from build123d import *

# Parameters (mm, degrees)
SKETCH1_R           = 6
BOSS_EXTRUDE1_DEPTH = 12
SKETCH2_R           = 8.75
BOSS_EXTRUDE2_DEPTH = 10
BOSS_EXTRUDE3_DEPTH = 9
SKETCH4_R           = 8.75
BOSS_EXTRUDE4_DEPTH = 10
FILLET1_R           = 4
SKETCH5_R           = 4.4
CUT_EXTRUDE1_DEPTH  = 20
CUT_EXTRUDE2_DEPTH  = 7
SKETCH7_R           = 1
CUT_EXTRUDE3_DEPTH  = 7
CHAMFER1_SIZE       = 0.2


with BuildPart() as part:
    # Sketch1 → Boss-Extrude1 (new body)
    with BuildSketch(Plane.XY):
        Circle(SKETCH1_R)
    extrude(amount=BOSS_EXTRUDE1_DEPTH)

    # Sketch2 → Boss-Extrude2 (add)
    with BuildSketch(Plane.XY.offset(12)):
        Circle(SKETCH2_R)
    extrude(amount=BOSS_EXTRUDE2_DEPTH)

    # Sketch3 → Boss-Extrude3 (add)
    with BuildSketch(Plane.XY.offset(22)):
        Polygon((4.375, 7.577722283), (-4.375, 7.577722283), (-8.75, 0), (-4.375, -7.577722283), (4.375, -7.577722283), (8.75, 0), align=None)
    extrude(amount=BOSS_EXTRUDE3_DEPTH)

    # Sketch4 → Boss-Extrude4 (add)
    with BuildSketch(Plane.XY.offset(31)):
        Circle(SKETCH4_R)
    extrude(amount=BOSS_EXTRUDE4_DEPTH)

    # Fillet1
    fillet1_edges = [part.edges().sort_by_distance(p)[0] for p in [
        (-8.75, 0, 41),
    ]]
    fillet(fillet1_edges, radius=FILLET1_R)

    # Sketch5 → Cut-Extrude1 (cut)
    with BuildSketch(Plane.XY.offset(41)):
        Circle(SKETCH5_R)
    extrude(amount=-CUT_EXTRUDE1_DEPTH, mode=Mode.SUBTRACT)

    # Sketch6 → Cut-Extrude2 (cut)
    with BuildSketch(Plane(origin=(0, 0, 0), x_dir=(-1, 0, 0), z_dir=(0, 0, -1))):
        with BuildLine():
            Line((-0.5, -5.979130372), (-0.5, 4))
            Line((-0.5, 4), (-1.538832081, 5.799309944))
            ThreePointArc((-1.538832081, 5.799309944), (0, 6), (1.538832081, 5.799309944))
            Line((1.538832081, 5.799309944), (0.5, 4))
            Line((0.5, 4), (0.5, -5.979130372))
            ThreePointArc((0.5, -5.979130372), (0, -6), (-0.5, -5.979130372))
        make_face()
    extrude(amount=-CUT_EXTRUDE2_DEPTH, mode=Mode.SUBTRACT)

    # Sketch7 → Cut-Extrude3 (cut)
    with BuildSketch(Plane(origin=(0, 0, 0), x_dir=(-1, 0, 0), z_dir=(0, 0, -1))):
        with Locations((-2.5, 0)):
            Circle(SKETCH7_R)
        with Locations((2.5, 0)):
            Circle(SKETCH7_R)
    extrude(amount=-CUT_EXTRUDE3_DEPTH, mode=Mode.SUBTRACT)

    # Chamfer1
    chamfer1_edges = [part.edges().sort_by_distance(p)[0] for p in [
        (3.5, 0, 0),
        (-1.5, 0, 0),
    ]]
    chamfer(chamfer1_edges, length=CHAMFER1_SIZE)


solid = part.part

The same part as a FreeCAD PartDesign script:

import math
import FreeCAD as App
import Part
import Sketcher
from FreeCAD import Vector
Q = App.Units.Quantity


def edges_at(feature, points):
    """Names of the edges that pass closest to the given points."""
    edges = feature.Shape.Edges
    near = lambda p: min(range(len(edges)), key=lambda i: edges[i].distToShape(Part.Vertex(*p))[0])
    return sorted({f"Edge{near(p) + 1}" for p in points})


def add_polygon(sketch, points):
    """Adds a closed chain of lines whose ends are joined by coincident constraints."""
    first, n = sketch.GeometryCount, len(points)
    for a, b in zip(points, points[1:] + points[:1]):
        sketch.addGeometry(Part.LineSegment(App.Vector(*a, 0), App.Vector(*b, 0)), False)
    for i in range(n):
        sketch.addConstraint(Sketcher.Constraint("Coincident", first + i, 2, first + (i + 1) % n, 1))

doc = App.newDocument("Part")
body = doc.addObject("PartDesign::Body", "Body")

# Sketch on XY plane
sketch1 = body.newObject("Sketcher::SketchObject", "Sketch")
sketch1.AttachmentSupport = (doc.getObject("XY_Plane"), [""])
sketch1.MapMode = "FlatFace"
sketch1.addGeometry(Part.Circle(Vector(0, 0, 0), Vector(0, 0, 1), 6), False)
sketch1.addConstraint(Sketcher.Constraint("Coincident", 0, 3, -1, 1))
sketch1.addConstraint(Sketcher.Constraint("Diameter", 0, 12.0))
pad1 = body.newObject("PartDesign::Pad", "Pad")
pad1.Profile = sketch1
pad1.Length = 12

# Sketch on XY plane
sketch2 = body.newObject("Sketcher::SketchObject", "Sketch001")
sketch2.AttachmentSupport = (doc.getObject("XY_Plane"), [""])
sketch2.MapMode = "FlatFace"
sketch2.AttachmentOffset = App.Placement(Vector(0, 0, 12), App.Rotation())
sketch2.addGeometry(Part.Circle(Vector(0, 0, 0), Vector(0, 0, 1), 8.75), False)
sketch2.addConstraint(Sketcher.Constraint("Coincident", 0, 3, -1, 1))
sketch2.addConstraint(Sketcher.Constraint("Diameter", 0, 17.5))
pad2 = body.newObject("PartDesign::Pad", "Pad001")
pad2.Profile = sketch2
pad2.Length = 10

# Sketch on XY plane
sketch3 = body.newObject("Sketcher::SketchObject", "Sketch002")
sketch3.AttachmentSupport = (doc.getObject("XY_Plane"), [""])
sketch3.MapMode = "FlatFace"
sketch3.AttachmentOffset = App.Placement(Vector(0, 0, 22), App.Rotation())
add_polygon(sketch3, [(4.375, 7.577722), (-4.375, 7.577722), (-8.75, 0), (-4.375, -7.577722), (4.375, -7.577722), (8.75, 0)])  # lines 0-5
sketch3.addConstraint(Sketcher.Constraint("Horizontal", 0))
sketch3.addConstraint(Sketcher.Constraint("Horizontal", 3))
sketch3.addConstraint(Sketcher.Constraint("Symmetric", 0, 2, 3, 2, -1, 1))
sketch3.addConstraint(Sketcher.Constraint("Symmetric", 1, 2, 4, 2, -1, 1))
sketch3.addConstraint(Sketcher.Constraint("PointOnObject", 1, 2, -1))
sketch3.addConstraint(Sketcher.Constraint("Parallel", 2, 5))
sketch3.addConstraint(Sketcher.Constraint("Vertical", 0, 2, 2, 2))
sketch3.addConstraint(Sketcher.Constraint("Angle", 1, Q("-120 deg")))
sketch3.addConstraint(Sketcher.Constraint("DistanceX", 0, 2, 0, 1, 8.75))
sketch3.addConstraint(Sketcher.Constraint("DistanceX", 1, 2, 4, 2, 17.5))
pad3 = body.newObject("PartDesign::Pad", "Pad002")
pad3.Profile = sketch3
pad3.Length = 9

# Sketch on XY plane
sketch4 = body.newObject("Sketcher::SketchObject", "Sketch003")
sketch4.AttachmentSupport = (doc.getObject("XY_Plane"), [""])
sketch4.MapMode = "FlatFace"
sketch4.AttachmentOffset = App.Placement(Vector(0, 0, 31), App.Rotation())
sketch4.addGeometry(Part.Circle(Vector(0, 0, 0), Vector(0, 0, 1), 8.75), False)
sketch4.addConstraint(Sketcher.Constraint("Coincident", 0, 3, -1, 1))
sketch4.addConstraint(Sketcher.Constraint("Diameter", 0, 17.5))
pad4 = body.newObject("PartDesign::Pad", "Pad003")
pad4.Profile = sketch4
pad4.Length = 10
doc.recompute()

fillet = body.newObject("PartDesign::Fillet", "Fillet")
fillet.Base = (pad4, edges_at(pad4, [(-8.75, 0, 41)]))
fillet.Radius = 4

# Sketch on XY plane
sketch5 = body.newObject("Sketcher::SketchObject", "Sketch004")
sketch5.AttachmentSupport = (doc.getObject("XY_Plane"), [""])
sketch5.MapMode = "FlatFace"
sketch5.AttachmentOffset = App.Placement(Vector(0, 0, 41), App.Rotation())
sketch5.addGeometry(Part.Circle(Vector(0, 0, 0), Vector(0, 0, 1), 4.4), False)
sketch5.addConstraint(Sketcher.Constraint("Coincident", 0, 3, -1, 1))
sketch5.addConstraint(Sketcher.Constraint("Diameter", 0, 8.8))
pocket1 = body.newObject("PartDesign::Pocket", "Pocket")
pocket1.Profile = sketch5
pocket1.Length = 20

# Sketch on XY plane
sketch6 = body.newObject("Sketcher::SketchObject", "Sketch005")
sketch6.AttachmentSupport = (doc.getObject("XY_Plane"), [""])
sketch6.MapMode = "FlatFace"
sketch6.addGeometry(Part.LineSegment(Vector(0.5, 4, 0), Vector(0.5, -5.97913, 0)), False)
sketch6.addGeometry(Part.ArcOfCircle(Part.Circle(Vector(0, 0, 0), Vector(0, 0, 1), 6), math.radians(-94.780192), math.radians(-85.219808)), False)
sketch6.addGeometry(Part.LineSegment(Vector(-0.5, -5.97913, 0), Vector(-0.5, 4, 0)), False)
sketch6.addGeometry(Part.LineSegment(Vector(-0.5, 4, 0), Vector(-1.538832, 5.79931, 0)), False)
sketch6.addGeometry(Part.ArcOfCircle(Part.Circle(Vector(0, 0, 0), Vector(0, 0, 1), 6), math.radians(75.139174), math.radians(104.860826)), False)
sketch6.addGeometry(Part.LineSegment(Vector(1.538832, 5.79931, 0), Vector(0.5, 4, 0)), False)
sketch6.addConstraint(Sketcher.Constraint("Coincident", 0, 2, 1, 2))
sketch6.addConstraint(Sketcher.Constraint("Coincident", 1, 1, 2, 1))
sketch6.addConstraint(Sketcher.Constraint("Coincident", 2, 2, 3, 1))
sketch6.addConstraint(Sketcher.Constraint("Coincident", 3, 2, 4, 2))
sketch6.addConstraint(Sketcher.Constraint("Coincident", 4, 1, 5, 1))
sketch6.addConstraint(Sketcher.Constraint("Coincident", 5, 2, 0, 1))
sketch6.addConstraint(Sketcher.Constraint("Vertical", 0))
sketch6.addConstraint(Sketcher.Constraint("Vertical", 2))
sketch6.addConstraint(Sketcher.Constraint("Coincident", 1, 3, -1, 1))
sketch6.addConstraint(Sketcher.Constraint("Coincident", 4, 3, -1, 1))
sketch6.addConstraint(Sketcher.Constraint("Equal", 1, 4))
sketch6.addConstraint(Sketcher.Constraint("Symmetric", 2, 2, 5, 2, -2))
sketch6.addConstraint(Sketcher.Constraint("Horizontal", 3, 2, 4, 1))
sketch6.addConstraint(Sketcher.Constraint("Radius", 1, 6.0))
sketch6.addConstraint(Sketcher.Constraint("Angle", 3, Q("120 deg")))
sketch6.addConstraint(Sketcher.Constraint("DistanceY", -1, 1, 2, 2, 4.0))
sketch6.addConstraint(Sketcher.Constraint("DistanceX", 1, 1, 0, 2, 1.0))
pocket2 = body.newObject("PartDesign::Pocket", "Pocket001")
pocket2.Profile = sketch6
pocket2.Length = 7
pocket2.Reversed = True

# Sketch on XY plane
sketch7 = body.newObject("Sketcher::SketchObject", "Sketch006")
sketch7.AttachmentSupport = (doc.getObject("XY_Plane"), [""])
sketch7.MapMode = "FlatFace"
sketch7.addGeometry(Part.Circle(Vector(2.5, 0, 0), Vector(0, 0, 1), 1), False)
sketch7.addGeometry(Part.Circle(Vector(-2.5, 0, 0), Vector(0, 0, 1), 1), False)
sketch7.addConstraint(Sketcher.Constraint("Equal", 0, 1))
sketch7.addConstraint(Sketcher.Constraint("Symmetric", 0, 3, 1, 3, -1, 1))
sketch7.addConstraint(Sketcher.Constraint("PointOnObject", 0, 3, -1))
sketch7.addConstraint(Sketcher.Constraint("Diameter", 0, 2.0))
sketch7.addConstraint(Sketcher.Constraint("DistanceX", 1, 3, 0, 3, 5.0))
pocket3 = body.newObject("PartDesign::Pocket", "Pocket002")
pocket3.Profile = sketch7
pocket3.Length = 7
pocket3.Reversed = True
doc.recompute()

chamfer = body.newObject("PartDesign::Chamfer", "Chamfer")
chamfer.Base = (pocket3, edges_at(pocket3, [(3.5, 0, 0), (-1.5, 0, 0)]))
chamfer.Size = 0.2

doc.recompute()
